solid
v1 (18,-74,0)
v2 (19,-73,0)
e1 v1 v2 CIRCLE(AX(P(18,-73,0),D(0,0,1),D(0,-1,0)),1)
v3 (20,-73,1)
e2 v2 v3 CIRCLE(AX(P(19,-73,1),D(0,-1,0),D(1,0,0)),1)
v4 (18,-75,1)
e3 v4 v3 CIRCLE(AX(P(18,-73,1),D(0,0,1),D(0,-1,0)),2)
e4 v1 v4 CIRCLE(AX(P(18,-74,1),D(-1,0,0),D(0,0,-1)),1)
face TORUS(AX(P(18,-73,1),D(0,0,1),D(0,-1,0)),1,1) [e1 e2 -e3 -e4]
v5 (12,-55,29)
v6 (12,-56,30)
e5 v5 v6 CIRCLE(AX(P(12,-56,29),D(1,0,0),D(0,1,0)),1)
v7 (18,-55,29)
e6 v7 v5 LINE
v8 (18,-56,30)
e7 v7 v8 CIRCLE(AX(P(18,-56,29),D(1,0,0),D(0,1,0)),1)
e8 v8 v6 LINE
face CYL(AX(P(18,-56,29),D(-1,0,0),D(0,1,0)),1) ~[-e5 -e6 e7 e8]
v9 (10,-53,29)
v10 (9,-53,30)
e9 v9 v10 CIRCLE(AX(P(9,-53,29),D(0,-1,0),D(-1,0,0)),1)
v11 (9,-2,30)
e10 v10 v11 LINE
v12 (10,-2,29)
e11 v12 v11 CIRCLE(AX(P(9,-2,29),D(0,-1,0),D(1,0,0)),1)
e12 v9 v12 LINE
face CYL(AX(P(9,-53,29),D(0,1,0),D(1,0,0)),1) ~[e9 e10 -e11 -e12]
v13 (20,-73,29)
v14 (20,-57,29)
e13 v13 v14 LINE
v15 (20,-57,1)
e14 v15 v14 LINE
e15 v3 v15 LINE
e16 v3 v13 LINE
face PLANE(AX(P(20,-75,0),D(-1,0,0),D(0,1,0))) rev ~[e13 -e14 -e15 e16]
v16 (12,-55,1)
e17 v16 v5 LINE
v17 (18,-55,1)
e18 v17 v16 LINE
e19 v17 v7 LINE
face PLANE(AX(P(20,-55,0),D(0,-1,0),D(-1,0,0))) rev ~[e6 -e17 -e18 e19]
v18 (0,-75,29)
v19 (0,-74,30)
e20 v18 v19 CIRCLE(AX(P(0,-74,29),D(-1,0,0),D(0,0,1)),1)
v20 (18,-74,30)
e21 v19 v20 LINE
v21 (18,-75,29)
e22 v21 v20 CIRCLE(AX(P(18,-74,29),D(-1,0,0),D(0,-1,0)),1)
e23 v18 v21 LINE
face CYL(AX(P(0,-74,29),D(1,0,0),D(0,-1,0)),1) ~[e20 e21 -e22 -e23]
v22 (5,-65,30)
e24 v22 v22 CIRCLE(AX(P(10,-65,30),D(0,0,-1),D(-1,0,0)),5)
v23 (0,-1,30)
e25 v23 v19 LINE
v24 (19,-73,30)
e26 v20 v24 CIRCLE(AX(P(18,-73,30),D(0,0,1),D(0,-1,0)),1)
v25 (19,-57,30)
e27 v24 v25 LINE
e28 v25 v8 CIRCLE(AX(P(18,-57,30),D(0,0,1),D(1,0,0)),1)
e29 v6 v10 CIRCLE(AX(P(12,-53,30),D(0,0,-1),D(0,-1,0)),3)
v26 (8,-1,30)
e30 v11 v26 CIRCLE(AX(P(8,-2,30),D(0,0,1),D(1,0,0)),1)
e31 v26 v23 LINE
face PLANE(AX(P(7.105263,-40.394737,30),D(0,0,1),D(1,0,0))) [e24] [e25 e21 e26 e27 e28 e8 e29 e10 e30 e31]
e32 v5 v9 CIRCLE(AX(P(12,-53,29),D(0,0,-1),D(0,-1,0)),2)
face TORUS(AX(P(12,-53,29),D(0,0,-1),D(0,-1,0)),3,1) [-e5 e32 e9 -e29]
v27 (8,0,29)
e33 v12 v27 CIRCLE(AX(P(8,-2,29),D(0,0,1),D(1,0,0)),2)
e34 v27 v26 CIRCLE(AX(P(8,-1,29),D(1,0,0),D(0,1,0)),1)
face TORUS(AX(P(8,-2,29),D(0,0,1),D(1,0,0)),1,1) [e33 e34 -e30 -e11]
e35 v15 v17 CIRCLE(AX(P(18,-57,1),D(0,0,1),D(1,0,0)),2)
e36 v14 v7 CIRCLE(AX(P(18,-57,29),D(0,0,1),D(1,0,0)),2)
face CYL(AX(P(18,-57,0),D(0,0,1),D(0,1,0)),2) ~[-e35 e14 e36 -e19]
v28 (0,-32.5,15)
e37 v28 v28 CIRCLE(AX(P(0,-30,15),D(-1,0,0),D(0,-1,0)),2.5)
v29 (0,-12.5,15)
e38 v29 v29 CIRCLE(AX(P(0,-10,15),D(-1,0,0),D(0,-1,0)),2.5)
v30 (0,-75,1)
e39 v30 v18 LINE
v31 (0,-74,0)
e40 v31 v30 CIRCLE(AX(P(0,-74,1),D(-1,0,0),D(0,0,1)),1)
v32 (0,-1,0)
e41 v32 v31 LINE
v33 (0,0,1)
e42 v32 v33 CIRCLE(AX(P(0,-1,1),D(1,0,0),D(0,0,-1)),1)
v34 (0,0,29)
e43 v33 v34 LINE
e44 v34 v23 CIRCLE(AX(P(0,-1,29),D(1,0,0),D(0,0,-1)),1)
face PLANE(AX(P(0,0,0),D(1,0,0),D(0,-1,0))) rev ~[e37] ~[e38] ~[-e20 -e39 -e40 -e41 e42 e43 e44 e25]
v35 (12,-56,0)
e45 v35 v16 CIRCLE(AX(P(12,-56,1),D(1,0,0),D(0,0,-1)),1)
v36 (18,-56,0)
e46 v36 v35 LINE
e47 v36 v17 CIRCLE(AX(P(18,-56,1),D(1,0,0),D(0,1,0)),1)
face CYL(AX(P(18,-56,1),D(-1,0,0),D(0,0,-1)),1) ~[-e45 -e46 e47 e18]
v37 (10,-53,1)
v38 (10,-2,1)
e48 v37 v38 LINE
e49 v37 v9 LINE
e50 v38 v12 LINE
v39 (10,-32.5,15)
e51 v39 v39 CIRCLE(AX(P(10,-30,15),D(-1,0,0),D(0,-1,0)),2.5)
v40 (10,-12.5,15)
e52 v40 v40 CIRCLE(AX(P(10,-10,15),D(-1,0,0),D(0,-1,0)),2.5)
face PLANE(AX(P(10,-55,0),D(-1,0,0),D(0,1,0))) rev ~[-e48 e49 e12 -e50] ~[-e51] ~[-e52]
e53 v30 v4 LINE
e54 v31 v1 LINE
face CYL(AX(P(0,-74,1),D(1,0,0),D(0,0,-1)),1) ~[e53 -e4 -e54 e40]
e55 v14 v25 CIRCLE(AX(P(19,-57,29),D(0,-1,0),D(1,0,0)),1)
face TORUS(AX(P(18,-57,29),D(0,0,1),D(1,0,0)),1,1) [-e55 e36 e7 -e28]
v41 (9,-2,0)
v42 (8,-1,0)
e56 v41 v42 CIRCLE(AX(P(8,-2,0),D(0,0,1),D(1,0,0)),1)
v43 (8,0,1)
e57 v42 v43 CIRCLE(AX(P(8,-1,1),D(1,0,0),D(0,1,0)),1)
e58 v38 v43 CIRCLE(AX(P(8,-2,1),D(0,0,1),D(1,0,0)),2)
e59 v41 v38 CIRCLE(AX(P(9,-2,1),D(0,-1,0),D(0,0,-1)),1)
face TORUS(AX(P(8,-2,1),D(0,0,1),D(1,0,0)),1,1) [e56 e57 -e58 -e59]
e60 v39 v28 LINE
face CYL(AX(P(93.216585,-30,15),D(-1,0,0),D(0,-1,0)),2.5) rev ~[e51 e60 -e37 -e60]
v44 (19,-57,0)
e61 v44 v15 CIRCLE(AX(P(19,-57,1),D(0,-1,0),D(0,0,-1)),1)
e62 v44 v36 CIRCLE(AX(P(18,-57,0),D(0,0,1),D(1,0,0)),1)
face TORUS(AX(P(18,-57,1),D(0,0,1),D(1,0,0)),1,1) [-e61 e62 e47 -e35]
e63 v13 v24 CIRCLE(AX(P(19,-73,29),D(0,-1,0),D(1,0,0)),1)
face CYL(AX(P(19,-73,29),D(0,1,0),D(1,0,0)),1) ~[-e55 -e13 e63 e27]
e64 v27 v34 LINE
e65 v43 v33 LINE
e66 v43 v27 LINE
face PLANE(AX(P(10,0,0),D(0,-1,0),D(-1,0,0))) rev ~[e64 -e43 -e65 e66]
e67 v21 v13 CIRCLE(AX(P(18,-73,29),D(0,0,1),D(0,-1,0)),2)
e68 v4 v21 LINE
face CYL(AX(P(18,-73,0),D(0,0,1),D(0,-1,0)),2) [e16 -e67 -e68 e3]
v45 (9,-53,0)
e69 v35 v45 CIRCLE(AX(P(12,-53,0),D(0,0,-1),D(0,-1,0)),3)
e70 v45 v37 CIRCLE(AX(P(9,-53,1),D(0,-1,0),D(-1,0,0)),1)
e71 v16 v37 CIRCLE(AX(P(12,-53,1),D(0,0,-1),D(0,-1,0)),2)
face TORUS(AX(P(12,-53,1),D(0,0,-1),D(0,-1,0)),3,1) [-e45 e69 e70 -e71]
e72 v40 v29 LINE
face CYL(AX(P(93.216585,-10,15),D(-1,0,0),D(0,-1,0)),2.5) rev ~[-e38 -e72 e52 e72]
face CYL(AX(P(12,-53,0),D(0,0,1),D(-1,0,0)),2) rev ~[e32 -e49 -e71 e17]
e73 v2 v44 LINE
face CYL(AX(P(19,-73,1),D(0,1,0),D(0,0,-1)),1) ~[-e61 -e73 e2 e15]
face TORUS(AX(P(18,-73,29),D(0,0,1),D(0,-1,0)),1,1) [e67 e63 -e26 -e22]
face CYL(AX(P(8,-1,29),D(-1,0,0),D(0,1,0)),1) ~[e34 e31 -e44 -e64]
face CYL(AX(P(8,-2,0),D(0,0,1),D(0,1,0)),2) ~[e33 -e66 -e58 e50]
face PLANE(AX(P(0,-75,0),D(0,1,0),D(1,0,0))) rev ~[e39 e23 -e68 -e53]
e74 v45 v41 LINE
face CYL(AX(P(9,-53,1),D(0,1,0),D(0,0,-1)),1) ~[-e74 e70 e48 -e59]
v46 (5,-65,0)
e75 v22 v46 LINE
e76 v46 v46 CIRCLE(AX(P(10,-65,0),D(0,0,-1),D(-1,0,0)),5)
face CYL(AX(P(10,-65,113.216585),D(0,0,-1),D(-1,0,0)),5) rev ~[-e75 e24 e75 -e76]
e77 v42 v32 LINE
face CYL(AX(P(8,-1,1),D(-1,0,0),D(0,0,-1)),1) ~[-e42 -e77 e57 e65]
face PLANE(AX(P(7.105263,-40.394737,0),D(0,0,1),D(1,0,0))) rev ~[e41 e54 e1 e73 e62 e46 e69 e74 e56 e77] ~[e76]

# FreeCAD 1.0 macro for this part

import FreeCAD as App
import Part
import Sketcher

V = App.Vector
Q = App.Units.Quantity


def edges_at(feature, points):
    """Names of the edges that pass closest to the given points."""
    edges = feature.Shape.Edges
    near = lambda p: min(range(len(edges)), key=lambda i: edges[i].distToShape(Part.Vertex(*p))[0])
    return sorted({f"Edge{near(p) + 1}" for p in points})

doc = App.newDocument("Part")
body = doc.addObject("PartDesign::Body", "Body")

# Sketch on XY plane
sketch1 = body.newObject("Sketcher::SketchObject", "Sketch")
sketch1.AttachmentSupport = (doc.getObject("XY_Plane"), [""])
sketch1.MapMode = "FlatFace"
sketch1.addGeometry([
    Part.LineSegment(V(10, 0, 0), V(0, 0, 0)),  # 0
    Part.LineSegment(V(0, 0, 0), V(0, -75, 0)),  # 1
    Part.LineSegment(V(0, -75, 0), V(20, -75, 0)),  # 2
    Part.LineSegment(V(20, -75, 0), V(20, -55, 0)),  # 3
    Part.LineSegment(V(20, -55, 0), V(10, -55, 0)),  # 4
    Part.LineSegment(V(10, -55, 0), V(10, 0, 0)),  # 5
], False)
sketch1.addConstraint([
    Sketcher.Constraint("Coincident", 0, 2, 1, 1),
    Sketcher.Constraint("Coincident", 1, 2, 2, 1),
    Sketcher.Constraint("Coincident", 2, 2, 3, 1),
    Sketcher.Constraint("Coincident", 3, 2, 4, 1),
    Sketcher.Constraint("Coincident", 4, 2, 5, 1),
    Sketcher.Constraint("Coincident", 5, 2, 0, 1),
    Sketcher.Constraint("Horizontal", 0),
    Sketcher.Constraint("Vertical", 1),
    Sketcher.Constraint("Horizontal", 2),
    Sketcher.Constraint("Vertical", 3),
    Sketcher.Constraint("Horizontal", 4),
    Sketcher.Constraint("Vertical", 5),
    Sketcher.Constraint("Coincident", 0, 2, -1, 1),
    Sketcher.Constraint("Equal", 0, 4),
    Sketcher.Constraint("Equal", 2, 3),
    Sketcher.Constraint("DistanceX", 0, 2, 0, 1, Q("10 mm")),
    Sketcher.Constraint("DistanceY", 1, 2, 1, 1, Q("75 mm")),
])
pad1 = body.newObject("PartDesign::Pad", "Pad")
pad1.Profile = sketch1
pad1.Length = 30

# Sketch on XY plane
sketch2 = body.newObject("Sketcher::SketchObject", "Sketch001")
sketch2.AttachmentSupport = (doc.getObject("XY_Plane"), [""])
sketch2.MapMode = "FlatFace"
sketch2.AttachmentOffset = App.Placement(V(0, 0, 30), App.Rotation())
sketch2.addGeometry(Part.Circle(V(10, -65, 0), V(0, 0, 1), 5), False)
sketch2.addConstraint([
    Sketcher.Constraint("Diameter", 0, Q("10 mm")),
    Sketcher.Constraint("DistanceX", -1, 1, 0, 3, Q("10 mm")),
    Sketcher.Constraint("DistanceY", 0, 3, -1, 1, Q("65 mm")),
])
doc.recompute()
hole = body.newObject("PartDesign::Hole", "Hole")
hole.Profile = sketch2
hole.ThreadType = "None"
hole.Diameter = 10
hole.DepthType = "ThroughAll"

# Sketch on YZ plane
sketch3 = body.newObject("Sketcher::SketchObject", "Sketch002")
sketch3.AttachmentSupport = (doc.getObject("YZ_Plane"), [""])
sketch3.MapMode = "FlatFace"
sketch3.AttachmentOffset = App.Placement(V(0, 0, 10), App.Rotation())
sketch3.addGeometry(Part.Circle(V(-10, 15, 0), V(0, 0, 1), 2.5), False)
sketch3.addConstraint([
    Sketcher.Constraint("Diameter", 0, Q("5 mm")),
    Sketcher.Constraint("DistanceX", 0, 3, -1, 1, Q("10 mm")),
    Sketcher.Constraint("DistanceY", -1, 1, 0, 3, Q("15 mm")),
])
doc.recompute()
hole2 = body.newObject("PartDesign::Hole", "Hole001")
hole2.Profile = sketch3
hole2.ThreadType = "None"
hole2.Diameter = 5
hole2.DepthType = "ThroughAll"

# Sketch on YZ plane
sketch4 = body.newObject("Sketcher::SketchObject", "Sketch003")
sketch4.AttachmentSupport = (doc.getObject("YZ_Plane"), [""])
sketch4.MapMode = "FlatFace"
sketch4.AttachmentOffset = App.Placement(V(0, 0, 10), App.Rotation())
sketch4.addGeometry(Part.Circle(V(-30, 15, 0), V(0, 0, 1), 2.5), False)
sketch4.addConstraint([
    Sketcher.Constraint("Diameter", 0, Q("5 mm")),
    Sketcher.Constraint("DistanceX", 0, 3, -1, 1, Q("30 mm")),
    Sketcher.Constraint("DistanceY", -1, 1, 0, 3, Q("15 mm")),
])
doc.recompute()
hole3 = body.newObject("PartDesign::Hole", "Hole002")
hole3.Profile = sketch4
hole3.ThreadType = "None"
hole3.Diameter = 5
hole3.DepthType = "ThroughAll"
doc.recompute()

fillet = body.newObject("PartDesign::Fillet", "Fillet")
fillet.Base = (hole3, edges_at(hole3, [
    (10, 0, 15),
    (20, -55, 15),
    (10, -55, 15),
    (20, -75, 15),
]))
fillet.Radius = 2
doc.recompute()

fillet2 = body.newObject("PartDesign::Fillet", "Fillet001")
fillet2.Base = (fillet, edges_at(fillet, [(4, 0, 30), (10, -27.5, 0)]))
fillet2.Radius = 1

doc.recompute()
